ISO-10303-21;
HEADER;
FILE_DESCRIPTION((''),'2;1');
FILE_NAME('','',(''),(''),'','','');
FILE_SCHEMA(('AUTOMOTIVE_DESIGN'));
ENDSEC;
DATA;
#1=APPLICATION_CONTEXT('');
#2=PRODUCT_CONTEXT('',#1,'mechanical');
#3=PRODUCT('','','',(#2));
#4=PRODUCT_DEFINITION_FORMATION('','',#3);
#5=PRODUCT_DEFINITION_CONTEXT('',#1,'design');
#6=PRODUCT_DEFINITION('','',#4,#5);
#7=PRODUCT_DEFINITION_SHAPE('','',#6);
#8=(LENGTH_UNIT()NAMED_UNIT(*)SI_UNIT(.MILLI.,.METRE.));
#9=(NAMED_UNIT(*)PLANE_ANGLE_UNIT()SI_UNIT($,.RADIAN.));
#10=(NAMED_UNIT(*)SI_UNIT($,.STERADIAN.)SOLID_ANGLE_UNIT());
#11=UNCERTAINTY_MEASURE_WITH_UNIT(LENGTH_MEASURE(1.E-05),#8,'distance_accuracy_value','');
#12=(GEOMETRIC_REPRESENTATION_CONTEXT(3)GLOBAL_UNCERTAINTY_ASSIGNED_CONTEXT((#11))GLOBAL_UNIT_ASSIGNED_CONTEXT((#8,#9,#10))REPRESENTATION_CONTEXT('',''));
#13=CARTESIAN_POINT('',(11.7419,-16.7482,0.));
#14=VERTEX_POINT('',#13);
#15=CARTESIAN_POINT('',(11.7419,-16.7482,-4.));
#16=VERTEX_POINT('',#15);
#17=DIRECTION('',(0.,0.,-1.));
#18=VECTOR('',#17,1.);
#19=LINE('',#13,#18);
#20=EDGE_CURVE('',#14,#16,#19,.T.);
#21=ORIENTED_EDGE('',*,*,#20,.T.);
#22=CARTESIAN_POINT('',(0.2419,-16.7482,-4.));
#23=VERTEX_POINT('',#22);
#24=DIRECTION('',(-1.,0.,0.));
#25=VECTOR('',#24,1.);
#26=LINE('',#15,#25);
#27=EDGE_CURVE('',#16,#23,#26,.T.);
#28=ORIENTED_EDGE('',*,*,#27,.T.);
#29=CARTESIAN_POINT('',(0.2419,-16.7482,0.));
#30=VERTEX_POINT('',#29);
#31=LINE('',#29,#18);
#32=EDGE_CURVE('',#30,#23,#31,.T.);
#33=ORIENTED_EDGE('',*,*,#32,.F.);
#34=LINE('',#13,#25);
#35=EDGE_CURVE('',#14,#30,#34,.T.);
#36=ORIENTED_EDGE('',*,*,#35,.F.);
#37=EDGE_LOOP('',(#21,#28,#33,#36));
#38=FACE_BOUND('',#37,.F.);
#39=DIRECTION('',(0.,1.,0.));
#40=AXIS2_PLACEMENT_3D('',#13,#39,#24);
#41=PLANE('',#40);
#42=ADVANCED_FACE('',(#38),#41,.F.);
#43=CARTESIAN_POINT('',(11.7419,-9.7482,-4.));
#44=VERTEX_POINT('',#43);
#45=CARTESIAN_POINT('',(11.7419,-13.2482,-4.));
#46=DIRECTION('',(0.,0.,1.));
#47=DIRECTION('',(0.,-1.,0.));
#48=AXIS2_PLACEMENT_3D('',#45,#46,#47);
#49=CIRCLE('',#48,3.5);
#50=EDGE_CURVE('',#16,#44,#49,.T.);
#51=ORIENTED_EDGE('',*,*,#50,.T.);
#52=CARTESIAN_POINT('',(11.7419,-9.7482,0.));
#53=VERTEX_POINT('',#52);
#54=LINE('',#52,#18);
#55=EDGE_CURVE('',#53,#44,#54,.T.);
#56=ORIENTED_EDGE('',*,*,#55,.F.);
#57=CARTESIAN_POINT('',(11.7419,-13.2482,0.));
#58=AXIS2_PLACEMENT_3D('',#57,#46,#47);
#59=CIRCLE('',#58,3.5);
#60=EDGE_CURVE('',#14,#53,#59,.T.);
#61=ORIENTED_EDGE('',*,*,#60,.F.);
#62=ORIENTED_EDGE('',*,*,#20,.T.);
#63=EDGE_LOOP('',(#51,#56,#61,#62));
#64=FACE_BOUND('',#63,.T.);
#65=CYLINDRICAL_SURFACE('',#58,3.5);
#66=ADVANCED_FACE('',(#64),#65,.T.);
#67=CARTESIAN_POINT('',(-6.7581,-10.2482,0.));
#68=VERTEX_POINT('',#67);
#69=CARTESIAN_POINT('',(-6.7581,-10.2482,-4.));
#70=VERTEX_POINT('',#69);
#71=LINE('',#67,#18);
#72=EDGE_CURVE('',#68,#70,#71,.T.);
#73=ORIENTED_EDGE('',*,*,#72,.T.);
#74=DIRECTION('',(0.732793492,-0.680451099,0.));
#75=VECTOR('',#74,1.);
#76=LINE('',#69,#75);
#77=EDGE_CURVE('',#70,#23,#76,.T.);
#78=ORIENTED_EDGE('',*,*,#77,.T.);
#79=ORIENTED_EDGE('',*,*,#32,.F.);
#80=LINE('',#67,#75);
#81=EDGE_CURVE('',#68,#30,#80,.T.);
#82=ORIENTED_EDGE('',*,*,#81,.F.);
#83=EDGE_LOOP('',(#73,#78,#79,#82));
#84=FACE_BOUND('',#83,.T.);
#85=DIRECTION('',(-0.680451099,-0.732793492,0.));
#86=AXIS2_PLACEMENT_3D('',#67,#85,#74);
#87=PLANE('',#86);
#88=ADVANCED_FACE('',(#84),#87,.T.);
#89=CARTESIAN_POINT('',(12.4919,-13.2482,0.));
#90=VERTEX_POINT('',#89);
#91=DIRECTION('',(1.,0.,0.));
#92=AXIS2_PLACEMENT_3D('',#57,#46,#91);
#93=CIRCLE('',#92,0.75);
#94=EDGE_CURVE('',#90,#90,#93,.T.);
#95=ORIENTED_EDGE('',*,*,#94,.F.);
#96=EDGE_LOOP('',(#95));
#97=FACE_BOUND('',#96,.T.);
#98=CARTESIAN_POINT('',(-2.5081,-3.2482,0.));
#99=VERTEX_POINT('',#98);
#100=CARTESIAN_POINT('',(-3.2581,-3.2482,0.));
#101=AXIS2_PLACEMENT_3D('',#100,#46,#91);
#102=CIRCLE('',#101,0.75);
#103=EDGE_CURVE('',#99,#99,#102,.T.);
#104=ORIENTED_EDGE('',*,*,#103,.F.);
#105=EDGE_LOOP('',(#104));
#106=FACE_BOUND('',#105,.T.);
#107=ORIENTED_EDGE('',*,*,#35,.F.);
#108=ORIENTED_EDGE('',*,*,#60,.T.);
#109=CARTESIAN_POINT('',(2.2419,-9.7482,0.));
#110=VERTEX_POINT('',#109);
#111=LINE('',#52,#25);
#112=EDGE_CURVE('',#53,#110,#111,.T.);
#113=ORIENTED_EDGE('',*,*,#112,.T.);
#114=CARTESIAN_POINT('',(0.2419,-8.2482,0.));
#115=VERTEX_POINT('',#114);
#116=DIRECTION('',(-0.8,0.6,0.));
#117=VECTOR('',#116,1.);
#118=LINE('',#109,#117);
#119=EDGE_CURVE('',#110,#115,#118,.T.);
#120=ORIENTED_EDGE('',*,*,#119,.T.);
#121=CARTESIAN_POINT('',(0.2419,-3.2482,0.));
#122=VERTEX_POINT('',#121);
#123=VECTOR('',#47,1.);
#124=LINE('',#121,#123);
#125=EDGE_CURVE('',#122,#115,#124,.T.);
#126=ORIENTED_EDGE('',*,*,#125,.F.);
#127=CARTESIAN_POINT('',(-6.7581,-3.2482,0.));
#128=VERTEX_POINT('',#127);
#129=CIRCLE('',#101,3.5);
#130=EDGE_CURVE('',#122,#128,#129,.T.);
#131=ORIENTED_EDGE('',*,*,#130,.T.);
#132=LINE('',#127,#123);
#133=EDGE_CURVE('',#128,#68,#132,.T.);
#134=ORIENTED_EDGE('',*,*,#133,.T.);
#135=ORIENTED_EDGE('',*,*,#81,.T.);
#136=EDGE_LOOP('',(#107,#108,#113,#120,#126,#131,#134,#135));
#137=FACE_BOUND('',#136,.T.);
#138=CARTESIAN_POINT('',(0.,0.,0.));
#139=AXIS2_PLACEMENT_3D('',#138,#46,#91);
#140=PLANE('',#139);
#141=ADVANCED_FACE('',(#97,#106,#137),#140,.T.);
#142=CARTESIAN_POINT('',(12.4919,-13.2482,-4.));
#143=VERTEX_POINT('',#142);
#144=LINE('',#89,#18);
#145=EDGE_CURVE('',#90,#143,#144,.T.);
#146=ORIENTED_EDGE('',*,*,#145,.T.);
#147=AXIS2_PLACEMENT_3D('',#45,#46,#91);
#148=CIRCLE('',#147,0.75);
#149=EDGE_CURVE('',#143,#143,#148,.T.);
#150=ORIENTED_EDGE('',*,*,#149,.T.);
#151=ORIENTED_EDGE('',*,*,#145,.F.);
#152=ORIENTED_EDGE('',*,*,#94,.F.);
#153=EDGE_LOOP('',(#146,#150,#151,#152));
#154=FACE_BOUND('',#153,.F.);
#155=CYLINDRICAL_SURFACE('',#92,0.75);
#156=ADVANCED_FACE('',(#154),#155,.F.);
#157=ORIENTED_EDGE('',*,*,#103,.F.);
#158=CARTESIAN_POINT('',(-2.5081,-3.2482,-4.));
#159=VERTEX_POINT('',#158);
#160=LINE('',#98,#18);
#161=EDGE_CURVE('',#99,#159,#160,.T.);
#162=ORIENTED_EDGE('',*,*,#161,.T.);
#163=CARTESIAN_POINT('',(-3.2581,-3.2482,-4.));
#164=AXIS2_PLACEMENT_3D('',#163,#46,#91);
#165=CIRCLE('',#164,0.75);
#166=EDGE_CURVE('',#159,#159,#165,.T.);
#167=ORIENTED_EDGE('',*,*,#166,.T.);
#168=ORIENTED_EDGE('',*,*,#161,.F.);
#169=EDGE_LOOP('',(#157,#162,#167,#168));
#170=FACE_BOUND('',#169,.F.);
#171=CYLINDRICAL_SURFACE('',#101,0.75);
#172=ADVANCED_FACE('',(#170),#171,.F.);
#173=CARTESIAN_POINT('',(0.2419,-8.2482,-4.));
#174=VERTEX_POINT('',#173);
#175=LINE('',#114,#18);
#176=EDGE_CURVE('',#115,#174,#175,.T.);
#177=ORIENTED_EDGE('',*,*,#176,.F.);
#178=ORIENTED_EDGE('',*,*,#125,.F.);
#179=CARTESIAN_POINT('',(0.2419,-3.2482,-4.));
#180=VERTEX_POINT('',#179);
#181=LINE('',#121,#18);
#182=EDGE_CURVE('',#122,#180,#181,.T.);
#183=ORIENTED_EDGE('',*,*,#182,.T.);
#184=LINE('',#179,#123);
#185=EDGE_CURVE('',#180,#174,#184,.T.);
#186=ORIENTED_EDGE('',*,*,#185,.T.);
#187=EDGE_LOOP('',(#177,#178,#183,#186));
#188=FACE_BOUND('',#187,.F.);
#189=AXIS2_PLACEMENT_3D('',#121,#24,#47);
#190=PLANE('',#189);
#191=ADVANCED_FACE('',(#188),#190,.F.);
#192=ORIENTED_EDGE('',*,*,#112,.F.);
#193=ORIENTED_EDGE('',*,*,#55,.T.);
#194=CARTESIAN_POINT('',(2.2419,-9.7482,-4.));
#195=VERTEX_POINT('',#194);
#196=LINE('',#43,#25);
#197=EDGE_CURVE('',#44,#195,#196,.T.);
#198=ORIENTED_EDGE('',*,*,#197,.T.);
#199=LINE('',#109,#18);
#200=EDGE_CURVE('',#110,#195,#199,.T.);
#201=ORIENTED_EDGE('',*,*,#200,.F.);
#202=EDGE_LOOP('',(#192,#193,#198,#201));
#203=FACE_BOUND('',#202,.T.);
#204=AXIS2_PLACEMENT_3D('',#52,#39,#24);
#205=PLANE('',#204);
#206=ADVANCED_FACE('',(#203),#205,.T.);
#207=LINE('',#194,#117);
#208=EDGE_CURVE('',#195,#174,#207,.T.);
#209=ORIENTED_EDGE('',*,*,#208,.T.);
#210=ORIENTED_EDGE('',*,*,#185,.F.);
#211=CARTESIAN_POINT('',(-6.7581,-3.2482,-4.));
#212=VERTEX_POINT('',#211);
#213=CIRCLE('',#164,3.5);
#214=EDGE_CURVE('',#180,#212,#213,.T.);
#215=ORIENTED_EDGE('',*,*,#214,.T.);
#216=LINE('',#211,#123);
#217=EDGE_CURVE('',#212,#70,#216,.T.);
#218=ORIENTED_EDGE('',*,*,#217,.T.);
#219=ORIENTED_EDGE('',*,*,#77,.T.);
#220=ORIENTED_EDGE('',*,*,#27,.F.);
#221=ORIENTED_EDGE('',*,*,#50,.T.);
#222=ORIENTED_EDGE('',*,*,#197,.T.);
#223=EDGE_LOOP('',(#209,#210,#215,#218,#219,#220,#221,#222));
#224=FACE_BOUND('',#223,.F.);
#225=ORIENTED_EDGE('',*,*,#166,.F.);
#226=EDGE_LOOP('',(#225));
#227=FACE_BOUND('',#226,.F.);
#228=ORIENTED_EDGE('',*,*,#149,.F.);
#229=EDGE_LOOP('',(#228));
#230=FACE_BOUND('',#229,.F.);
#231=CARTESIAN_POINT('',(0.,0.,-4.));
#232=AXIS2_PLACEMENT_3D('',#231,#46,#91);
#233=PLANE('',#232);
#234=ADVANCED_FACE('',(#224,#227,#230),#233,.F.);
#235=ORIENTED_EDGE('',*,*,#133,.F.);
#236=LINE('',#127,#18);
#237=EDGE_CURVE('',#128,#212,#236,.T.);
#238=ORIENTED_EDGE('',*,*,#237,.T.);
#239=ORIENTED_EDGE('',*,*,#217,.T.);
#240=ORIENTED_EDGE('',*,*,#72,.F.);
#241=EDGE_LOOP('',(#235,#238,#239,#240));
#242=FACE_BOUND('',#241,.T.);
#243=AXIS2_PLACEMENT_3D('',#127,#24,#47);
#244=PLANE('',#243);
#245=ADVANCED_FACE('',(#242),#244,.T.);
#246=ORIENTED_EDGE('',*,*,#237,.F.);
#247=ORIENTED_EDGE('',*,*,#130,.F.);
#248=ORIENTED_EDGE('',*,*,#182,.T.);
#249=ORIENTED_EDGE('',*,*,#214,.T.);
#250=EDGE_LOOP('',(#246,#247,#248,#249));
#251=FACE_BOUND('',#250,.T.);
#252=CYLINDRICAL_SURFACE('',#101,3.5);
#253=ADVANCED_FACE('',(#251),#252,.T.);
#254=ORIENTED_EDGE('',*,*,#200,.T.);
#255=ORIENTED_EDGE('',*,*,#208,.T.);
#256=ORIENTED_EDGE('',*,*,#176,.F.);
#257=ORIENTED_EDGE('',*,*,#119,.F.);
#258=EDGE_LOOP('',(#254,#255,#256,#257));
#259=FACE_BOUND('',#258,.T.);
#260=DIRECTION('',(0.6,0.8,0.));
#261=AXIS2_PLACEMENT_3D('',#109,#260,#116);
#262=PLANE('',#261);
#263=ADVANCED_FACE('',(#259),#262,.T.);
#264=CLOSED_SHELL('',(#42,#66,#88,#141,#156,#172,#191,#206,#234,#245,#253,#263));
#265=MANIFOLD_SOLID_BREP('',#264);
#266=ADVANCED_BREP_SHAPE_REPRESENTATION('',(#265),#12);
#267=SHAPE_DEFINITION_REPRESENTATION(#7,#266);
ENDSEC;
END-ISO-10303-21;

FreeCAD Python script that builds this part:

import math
import FreeCAD as App
import Part
import Sketcher
Q = App.Units.Quantity

doc = App.newDocument("Part")
body = doc.addObject("PartDesign::Body", "Body")

# Sketch on XY plane
sketch1 = body.newObject("Sketcher::SketchObject", "Sketch")
sketch1.AttachmentSupport = (doc.getObject("XY_Plane"), [""])
sketch1.MapMode = "FlatFace"
sketch1.addGeometry(Part.LineSegment(App.Vector(0.2419, -16.7482, 0), App.Vector(11.7419, -16.7482, 0)), False)
sketch1.addGeometry(Part.ArcOfCircle(Part.Circle(App.Vector(11.7419, -13.2482, 0), App.Vector(0, 0, 1), 3.5), math.radians(-90), math.radians(90)), False)
sketch1.addGeometry(Part.LineSegment(App.Vector(11.7419, -9.7482, 0), App.Vector(2.2419, -9.7482, 0)), False)
sketch1.addGeometry(Part.LineSegment(App.Vector(2.2419, -9.7482, 0), App.Vector(0.2419, -8.2482, 0)), False)
sketch1.addGeometry(Part.LineSegment(App.Vector(0.2419, -8.2482, 0), App.Vector(0.2419, -3.2482, 0)), False)
sketch1.addGeometry(Part.ArcOfCircle(Part.Circle(App.Vector(-3.2581, -3.2482, 0), App.Vector(0, 0, 1), 3.5), math.radians(0), math.radians(180)), False)
sketch1.addGeometry(Part.LineSegment(App.Vector(-6.7581, -3.2482, 0), App.Vector(-6.7581, -10.2482, 0)), False)
sketch1.addGeometry(Part.LineSegment(App.Vector(-6.7581, -10.2482, 0), App.Vector(0.2419, -16.7482, 0)), False)
sketch1.addGeometry(Part.Circle(App.Vector(11.7419, -13.2482, 0), App.Vector(0, 0, 1), 0.75), False)
sketch1.addGeometry(Part.Circle(App.Vector(-3.2581, -3.2482, 0), App.Vector(0, 0, 1), 0.75), False)
sketch1.addConstraint(Sketcher.Constraint("Tangent", 0, 2, 1, 1))
sketch1.addConstraint(Sketcher.Constraint("Tangent", 1, 2, 2, 1))
sketch1.addConstraint(Sketcher.Constraint("Coincident", 2, 2, 3, 1))
sketch1.addConstraint(Sketcher.Constraint("Coincident", 3, 2, 4, 1))
sketch1.addConstraint(Sketcher.Constraint("Tangent", 4, 2, 5, 1))
sketch1.addConstraint(Sketcher.Constraint("Tangent", 5, 2, 6, 1))
sketch1.addConstraint(Sketcher.Constraint("Coincident", 6, 2, 7, 1))
sketch1.addConstraint(Sketcher.Constraint("Coincident", 7, 2, 0, 1))
sketch1.addConstraint(Sketcher.Constraint("Horizontal", 0))
sketch1.addConstraint(Sketcher.Constraint("Horizontal", 2))
sketch1.addConstraint(Sketcher.Constraint("Vertical", 4))
sketch1.addConstraint(Sketcher.Constraint("Vertical", 6))
sketch1.addConstraint(Sketcher.Constraint("Coincident", 8, 3, 1, 3))
sketch1.addConstraint(Sketcher.Constraint("Coincident", 9, 3, 5, 3))
sketch1.addConstraint(Sketcher.Constraint("Equal", 1, 5))
sketch1.addConstraint(Sketcher.Constraint("Equal", 8, 9))
sketch1.addConstraint(Sketcher.Constraint("Vertical", 4, 2, 7, 2))
sketch1.addConstraint(Sketcher.Constraint("Radius", 1, Q("3.5 mm")))
sketch1.addConstraint(Sketcher.Constraint("DistanceY", 4, 1, 4, 2, Q("5 mm")))
sketch1.addConstraint(Sketcher.Constraint("DistanceY", 6, 2, 6, 1, Q("7 mm")))
sketch1.addConstraint(Sketcher.Constraint("DistanceX", 0, 1, 0, 2, Q("11.5 mm")))
sketch1.addConstraint(Sketcher.Constraint("DistanceX", 2, 2, 2, 1, Q("9.5 mm")))
sketch1.addConstraint(Sketcher.Constraint("DistanceY", 1, 3, 3, 2, Q("5 mm")))
sketch1.addConstraint(Sketcher.Constraint("Diameter", 8, Q("1.5 mm")))
sketch1.addConstraint(Sketcher.Constraint("DistanceX", -1, 1, 1, 3, Q("11.742 mm")))
sketch1.addConstraint(Sketcher.Constraint("DistanceY", 1, 3, -1, 1, Q("13.2482 mm")))
pad1 = body.newObject("PartDesign::Pad", "Pad")
pad1.Profile = sketch1
pad1.Length = 4
pad1.Reversed = True

doc.recompute()
